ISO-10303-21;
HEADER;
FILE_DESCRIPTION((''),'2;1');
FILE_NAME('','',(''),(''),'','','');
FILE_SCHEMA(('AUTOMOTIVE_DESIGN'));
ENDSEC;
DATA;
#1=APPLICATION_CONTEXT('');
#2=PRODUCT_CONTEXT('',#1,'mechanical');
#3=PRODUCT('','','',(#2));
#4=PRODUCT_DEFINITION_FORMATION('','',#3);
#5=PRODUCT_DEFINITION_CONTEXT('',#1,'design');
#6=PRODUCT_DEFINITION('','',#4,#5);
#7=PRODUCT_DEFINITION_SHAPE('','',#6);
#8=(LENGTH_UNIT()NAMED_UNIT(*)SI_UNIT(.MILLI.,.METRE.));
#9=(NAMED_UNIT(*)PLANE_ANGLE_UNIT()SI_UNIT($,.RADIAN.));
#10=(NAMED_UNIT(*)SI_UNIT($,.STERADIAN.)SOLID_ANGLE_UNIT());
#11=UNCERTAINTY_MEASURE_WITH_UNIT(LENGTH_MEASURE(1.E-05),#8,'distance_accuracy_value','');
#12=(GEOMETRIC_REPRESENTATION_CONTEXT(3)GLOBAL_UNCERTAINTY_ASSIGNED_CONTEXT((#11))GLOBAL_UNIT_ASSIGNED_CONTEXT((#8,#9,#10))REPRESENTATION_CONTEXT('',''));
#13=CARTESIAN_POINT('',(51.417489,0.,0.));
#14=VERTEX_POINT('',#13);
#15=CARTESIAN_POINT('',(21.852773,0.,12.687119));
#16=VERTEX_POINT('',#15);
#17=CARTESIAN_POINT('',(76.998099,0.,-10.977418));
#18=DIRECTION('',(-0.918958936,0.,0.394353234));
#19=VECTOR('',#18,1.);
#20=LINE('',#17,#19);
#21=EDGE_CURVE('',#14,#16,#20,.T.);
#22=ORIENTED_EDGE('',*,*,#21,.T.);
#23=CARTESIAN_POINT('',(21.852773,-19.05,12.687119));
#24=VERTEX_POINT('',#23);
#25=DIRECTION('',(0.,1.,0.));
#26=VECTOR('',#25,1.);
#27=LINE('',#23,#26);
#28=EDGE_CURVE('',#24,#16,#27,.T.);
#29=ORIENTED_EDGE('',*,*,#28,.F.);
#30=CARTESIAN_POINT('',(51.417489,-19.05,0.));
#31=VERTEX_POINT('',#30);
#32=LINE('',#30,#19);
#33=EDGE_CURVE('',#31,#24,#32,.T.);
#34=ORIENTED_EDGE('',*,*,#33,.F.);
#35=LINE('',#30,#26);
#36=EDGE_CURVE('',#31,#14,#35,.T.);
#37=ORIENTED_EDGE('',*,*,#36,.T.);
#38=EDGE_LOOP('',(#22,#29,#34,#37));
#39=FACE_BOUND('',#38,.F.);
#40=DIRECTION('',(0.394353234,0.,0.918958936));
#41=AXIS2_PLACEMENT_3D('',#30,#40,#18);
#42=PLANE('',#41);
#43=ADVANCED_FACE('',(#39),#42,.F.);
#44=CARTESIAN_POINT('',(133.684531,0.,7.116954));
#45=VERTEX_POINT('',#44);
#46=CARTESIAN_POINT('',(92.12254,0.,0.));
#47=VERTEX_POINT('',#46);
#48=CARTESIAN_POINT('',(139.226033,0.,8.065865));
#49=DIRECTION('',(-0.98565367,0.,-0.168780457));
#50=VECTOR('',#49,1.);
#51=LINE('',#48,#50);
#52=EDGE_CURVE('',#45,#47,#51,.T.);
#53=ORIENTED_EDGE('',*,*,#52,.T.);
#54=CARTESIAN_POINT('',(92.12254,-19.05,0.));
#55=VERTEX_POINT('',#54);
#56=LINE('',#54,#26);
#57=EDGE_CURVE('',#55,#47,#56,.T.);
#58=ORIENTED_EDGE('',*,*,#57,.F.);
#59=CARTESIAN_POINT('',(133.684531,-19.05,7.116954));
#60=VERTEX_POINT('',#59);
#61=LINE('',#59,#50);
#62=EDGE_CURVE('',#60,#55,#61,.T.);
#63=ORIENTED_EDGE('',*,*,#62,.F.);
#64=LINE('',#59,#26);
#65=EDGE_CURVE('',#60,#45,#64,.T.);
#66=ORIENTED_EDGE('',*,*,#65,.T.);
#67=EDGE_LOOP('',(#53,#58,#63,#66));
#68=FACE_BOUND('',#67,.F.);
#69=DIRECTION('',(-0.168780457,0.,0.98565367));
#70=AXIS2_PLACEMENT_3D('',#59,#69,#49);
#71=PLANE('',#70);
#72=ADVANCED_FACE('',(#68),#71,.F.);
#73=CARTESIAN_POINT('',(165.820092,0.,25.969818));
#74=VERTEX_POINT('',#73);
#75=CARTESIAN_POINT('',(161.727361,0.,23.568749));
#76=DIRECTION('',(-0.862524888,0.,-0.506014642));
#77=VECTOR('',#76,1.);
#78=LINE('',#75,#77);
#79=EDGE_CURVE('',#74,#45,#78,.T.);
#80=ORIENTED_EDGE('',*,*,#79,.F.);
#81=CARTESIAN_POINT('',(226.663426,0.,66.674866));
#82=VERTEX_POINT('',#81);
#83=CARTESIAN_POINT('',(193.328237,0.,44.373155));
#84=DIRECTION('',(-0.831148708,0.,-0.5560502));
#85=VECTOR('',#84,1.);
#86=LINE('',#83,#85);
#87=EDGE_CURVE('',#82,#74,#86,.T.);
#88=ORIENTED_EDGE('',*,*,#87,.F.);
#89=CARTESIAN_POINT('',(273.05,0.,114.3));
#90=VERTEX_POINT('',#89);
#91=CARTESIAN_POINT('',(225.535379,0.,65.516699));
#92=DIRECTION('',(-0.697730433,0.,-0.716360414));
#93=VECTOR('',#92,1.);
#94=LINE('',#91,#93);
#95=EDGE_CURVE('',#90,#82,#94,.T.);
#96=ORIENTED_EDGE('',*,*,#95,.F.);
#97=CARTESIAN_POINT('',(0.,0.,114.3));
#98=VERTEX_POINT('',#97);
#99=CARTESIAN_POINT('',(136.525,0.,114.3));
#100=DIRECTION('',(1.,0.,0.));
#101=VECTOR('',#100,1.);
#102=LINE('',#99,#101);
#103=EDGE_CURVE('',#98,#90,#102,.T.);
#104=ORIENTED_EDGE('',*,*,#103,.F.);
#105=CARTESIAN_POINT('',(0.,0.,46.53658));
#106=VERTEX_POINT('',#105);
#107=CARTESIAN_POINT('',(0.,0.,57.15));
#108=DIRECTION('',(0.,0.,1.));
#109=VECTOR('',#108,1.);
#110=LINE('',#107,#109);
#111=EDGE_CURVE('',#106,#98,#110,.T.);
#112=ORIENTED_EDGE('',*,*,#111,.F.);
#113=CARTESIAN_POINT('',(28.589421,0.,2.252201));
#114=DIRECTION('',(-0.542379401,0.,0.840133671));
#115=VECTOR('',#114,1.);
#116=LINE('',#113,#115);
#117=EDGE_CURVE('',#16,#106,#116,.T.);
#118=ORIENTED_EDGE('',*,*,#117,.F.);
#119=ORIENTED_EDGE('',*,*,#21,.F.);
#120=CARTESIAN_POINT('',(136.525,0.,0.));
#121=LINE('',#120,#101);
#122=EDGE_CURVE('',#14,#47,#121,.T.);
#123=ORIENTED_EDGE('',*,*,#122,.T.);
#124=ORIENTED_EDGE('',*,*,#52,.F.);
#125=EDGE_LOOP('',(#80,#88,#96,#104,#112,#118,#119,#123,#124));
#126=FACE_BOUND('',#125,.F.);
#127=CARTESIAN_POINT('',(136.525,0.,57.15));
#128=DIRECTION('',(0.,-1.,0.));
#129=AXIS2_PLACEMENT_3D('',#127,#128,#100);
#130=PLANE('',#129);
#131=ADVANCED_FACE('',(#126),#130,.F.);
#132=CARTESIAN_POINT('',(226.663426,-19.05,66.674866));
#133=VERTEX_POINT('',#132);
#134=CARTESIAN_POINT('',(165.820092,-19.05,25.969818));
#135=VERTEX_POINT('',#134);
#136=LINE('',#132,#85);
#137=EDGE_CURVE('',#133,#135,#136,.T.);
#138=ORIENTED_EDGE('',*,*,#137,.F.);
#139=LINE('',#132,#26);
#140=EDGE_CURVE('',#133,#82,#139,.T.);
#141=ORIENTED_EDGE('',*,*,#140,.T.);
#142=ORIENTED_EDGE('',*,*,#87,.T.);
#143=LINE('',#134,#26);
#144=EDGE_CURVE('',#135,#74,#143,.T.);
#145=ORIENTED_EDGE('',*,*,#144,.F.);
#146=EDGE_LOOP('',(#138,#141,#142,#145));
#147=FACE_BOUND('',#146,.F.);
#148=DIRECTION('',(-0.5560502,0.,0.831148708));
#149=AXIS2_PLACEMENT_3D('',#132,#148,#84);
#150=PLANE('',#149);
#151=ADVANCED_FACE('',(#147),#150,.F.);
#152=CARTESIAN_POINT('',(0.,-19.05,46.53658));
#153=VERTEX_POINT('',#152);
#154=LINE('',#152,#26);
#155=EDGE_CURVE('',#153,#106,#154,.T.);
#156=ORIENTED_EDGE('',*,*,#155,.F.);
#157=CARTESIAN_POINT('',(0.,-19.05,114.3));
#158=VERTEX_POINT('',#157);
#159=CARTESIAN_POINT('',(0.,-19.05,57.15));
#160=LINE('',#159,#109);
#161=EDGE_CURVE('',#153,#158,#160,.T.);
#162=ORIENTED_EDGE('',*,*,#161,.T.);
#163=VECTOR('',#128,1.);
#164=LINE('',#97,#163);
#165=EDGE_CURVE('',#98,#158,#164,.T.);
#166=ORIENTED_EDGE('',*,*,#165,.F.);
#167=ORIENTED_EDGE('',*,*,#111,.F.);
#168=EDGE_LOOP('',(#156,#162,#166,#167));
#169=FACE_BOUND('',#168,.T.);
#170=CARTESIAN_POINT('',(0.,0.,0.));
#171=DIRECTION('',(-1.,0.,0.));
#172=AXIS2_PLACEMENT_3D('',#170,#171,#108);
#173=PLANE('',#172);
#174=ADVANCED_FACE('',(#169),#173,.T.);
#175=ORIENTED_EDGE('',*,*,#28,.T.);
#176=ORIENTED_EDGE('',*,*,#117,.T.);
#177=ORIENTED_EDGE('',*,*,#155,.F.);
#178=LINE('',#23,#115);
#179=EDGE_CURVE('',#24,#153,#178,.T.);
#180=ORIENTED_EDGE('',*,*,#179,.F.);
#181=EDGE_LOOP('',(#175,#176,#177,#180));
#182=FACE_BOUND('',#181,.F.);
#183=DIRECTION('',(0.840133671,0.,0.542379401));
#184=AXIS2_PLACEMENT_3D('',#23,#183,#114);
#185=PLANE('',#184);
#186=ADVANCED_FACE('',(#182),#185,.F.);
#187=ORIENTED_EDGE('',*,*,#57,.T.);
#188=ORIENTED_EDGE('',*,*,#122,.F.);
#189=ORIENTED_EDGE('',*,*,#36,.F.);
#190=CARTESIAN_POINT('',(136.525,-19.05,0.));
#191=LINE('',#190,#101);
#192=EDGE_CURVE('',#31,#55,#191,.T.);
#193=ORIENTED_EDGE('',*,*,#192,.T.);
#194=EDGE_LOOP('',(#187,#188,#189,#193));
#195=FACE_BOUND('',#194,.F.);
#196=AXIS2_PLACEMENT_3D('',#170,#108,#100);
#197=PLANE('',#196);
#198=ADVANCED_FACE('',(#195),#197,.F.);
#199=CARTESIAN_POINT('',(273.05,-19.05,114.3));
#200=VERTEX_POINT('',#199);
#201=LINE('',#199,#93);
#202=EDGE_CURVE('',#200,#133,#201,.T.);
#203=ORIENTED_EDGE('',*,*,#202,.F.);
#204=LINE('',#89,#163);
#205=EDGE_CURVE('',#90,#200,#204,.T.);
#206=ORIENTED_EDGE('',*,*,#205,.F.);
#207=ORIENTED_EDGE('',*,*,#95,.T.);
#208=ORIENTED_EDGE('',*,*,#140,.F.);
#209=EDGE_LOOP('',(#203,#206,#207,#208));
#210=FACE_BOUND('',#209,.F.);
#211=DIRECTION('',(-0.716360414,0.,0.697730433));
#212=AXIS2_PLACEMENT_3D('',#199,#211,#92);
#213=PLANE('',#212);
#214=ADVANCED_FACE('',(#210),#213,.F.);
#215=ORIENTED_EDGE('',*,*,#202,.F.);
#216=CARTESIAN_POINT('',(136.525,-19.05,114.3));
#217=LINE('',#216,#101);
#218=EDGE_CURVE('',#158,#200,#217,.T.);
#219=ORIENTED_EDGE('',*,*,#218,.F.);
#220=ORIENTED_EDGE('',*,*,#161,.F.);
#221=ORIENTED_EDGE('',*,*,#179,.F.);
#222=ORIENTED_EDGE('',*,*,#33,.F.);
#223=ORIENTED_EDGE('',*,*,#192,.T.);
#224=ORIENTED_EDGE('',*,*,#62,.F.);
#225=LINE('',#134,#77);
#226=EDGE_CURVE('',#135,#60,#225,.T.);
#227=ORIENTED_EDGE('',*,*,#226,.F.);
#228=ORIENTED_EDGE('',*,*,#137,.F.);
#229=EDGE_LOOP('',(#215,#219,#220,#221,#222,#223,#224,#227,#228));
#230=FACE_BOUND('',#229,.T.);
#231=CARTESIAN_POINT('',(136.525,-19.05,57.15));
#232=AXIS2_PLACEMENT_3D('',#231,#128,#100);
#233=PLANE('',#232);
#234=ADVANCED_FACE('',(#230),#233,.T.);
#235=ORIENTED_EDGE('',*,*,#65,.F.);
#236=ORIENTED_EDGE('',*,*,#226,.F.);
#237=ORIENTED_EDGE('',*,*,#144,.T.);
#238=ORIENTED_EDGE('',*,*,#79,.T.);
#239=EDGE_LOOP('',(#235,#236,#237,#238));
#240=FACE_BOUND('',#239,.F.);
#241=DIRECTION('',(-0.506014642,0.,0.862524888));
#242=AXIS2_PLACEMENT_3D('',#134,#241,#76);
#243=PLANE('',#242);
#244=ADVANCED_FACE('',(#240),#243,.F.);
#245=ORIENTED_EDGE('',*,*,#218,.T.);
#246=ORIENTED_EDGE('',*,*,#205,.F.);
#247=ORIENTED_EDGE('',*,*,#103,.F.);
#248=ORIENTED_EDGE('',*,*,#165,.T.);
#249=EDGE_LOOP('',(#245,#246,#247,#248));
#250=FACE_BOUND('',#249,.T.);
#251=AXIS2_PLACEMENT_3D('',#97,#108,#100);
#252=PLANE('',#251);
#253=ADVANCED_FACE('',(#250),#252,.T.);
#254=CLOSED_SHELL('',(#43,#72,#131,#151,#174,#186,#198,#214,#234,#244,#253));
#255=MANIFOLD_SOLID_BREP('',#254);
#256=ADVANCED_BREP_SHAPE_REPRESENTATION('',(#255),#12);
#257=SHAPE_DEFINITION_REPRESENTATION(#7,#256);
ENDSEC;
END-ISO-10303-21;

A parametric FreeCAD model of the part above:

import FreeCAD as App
import Part
import Sketcher
Q = App.Units.Quantity

doc = App.newDocument("Part")
params = doc.addObject("Spreadsheet::Sheet", "Params")
for row, (alias, value) in enumerate([
    ("sketch1_height", "4.5 in"),
    ("sketch1_width", "10.75 in"),
    ("pad1_length", "0.75 in"),
    ("sketch2_height", "4.5 in"),
    ("pocket1_length", "1 in"),
], start=1):
    params.set(f"A{row}", alias)
    params.set(f"B{row}", "=" + value)
    params.setAlias(f"B{row}", alias)

body = doc.addObject("PartDesign::Body", "Body")

# Sketch on XZ plane
sketch1 = body.newObject("Sketcher::SketchObject", "Sketch")
sketch1.AttachmentSupport = (doc.getObject("XZ_Plane"), [""])
sketch1.MapMode = "FlatFace"
sketch1.addGeometry([
    Part.LineSegment(App.Vector(0, 114.3, 0), App.Vector(0, 0, 0)),
    Part.LineSegment(App.Vector(0, 0, 0), App.Vector(273.05, 0, 0)),
    Part.LineSegment(App.Vector(273.05, 0, 0), App.Vector(273.05, 114.3, 0)),
    Part.LineSegment(App.Vector(273.05, 114.3, 0), App.Vector(0, 114.3, 0)),
], False)
sketch1.addConstraint([
    Sketcher.Constraint("Coincident", 0, 2, 1, 1),
    Sketcher.Constraint("Coincident", 1, 2, 2, 1),
    Sketcher.Constraint("Coincident", 2, 2, 3, 1),
    Sketcher.Constraint("Coincident", 3, 2, 0, 1),
    Sketcher.Constraint("Vertical", 0),
    Sketcher.Constraint("Horizontal", 1),
    Sketcher.Constraint("Vertical", 2),
    Sketcher.Constraint("Horizontal", 3),
    Sketcher.Constraint("Coincident", 0, 2, -1, 1),
    Sketcher.Constraint("DistanceY", 0, 2, 0, 1, Q("4.5 in")),
    Sketcher.Constraint("DistanceX", 1, 1, 1, 2, Q("10.75 in")),
])
sketch1.setExpression("Constraints[9]", "Params.sketch1_height")
sketch1.setExpression("Constraints[10]", "Params.sketch1_width")
pad1 = body.newObject("PartDesign::Pad", "Pad")
pad1.Profile = sketch1
pad1.setExpression("Length", "Params.pad1_length")

# Sketch on XZ plane
sketch2 = body.newObject("Sketcher::SketchObject", "Sketch001")
sketch2.AttachmentSupport = (doc.getObject("XZ_Plane"), [""])
sketch2.MapMode = "FlatFace"
sketch2.AttachmentOffset = App.Placement(App.Vector(0, 0, 0.75 * 25.4), App.Rotation())
sketch2.addGeometry([
    Part.LineSegment(App.Vector(21.852773, 12.687119, 0), App.Vector(0, 46.53658, 0)),  # 0
    Part.LineSegment(App.Vector(0, 46.53658, 0), App.Vector(0, 0, 0)),  # 1
    Part.LineSegment(App.Vector(0, 0, 0), App.Vector(51.417489, 0, 0)),  # 2
    Part.LineSegment(App.Vector(51.417489, 0, 0), App.Vector(21.852773, 12.687119, 0)),  # 3
    Part.LineSegment(App.Vector(273.05, 0, 0), App.Vector(273.05, 114.3, 0)),  # 4
    Part.LineSegment(App.Vector(273.05, 114.3, 0), App.Vector(226.663426, 66.674866, 0)),  # 5
    Part.LineSegment(App.Vector(226.663426, 66.674866, 0), App.Vector(165.820092, 25.969818, 0)),  # 6
    Part.LineSegment(App.Vector(165.820092, 25.969818, 0), App.Vector(133.684531, 7.116954, 0)),  # 7
    Part.LineSegment(App.Vector(133.684531, 7.116954, 0), App.Vector(92.12254, 0, 0)),  # 8
    Part.LineSegment(App.Vector(92.12254, 0, 0), App.Vector(273.05, 0, 0)),  # 9
], False)
sketch2.addConstraint([
    Sketcher.Constraint("Coincident", 0, 2, 1, 1),
    Sketcher.Constraint("Coincident", 1, 2, 2, 1),
    Sketcher.Constraint("Coincident", 2, 2, 3, 1),
    Sketcher.Constraint("Coincident", 3, 2, 0, 1),
    Sketcher.Constraint("Coincident", 4, 2, 5, 1),
    Sketcher.Constraint("Coincident", 5, 2, 6, 1),
    Sketcher.Constraint("Coincident", 6, 2, 7, 1),
    Sketcher.Constraint("Coincident", 7, 2, 8, 1),
    Sketcher.Constraint("Coincident", 8, 2, 9, 1),
    Sketcher.Constraint("Coincident", 9, 2, 4, 1),
    Sketcher.Constraint("Vertical", 1),
    Sketcher.Constraint("Horizontal", 2),
    Sketcher.Constraint("Vertical", 4),
    Sketcher.Constraint("Horizontal", 9),
    Sketcher.Constraint("Coincident", 1, 2, -1, 1),
    Sketcher.Constraint("PointOnObject", 8, 2, -1),
    Sketcher.Constraint("DistanceY", 4, 1, 4, 2, Q("4.5 in")),
    Sketcher.Constraint("DistanceX", -1, 1, 4, 2, Q("10.75 in")),
    Sketcher.Constraint("DistanceX", 2, 1, 2, 2, Q("51.417489 mm")),
    Sketcher.Constraint("DistanceX", 9, 1, 9, 2, Q("180.92746 mm")),
    Sketcher.Constraint("DistanceY", 1, 2, 1, 1, Q("46.53658 mm")),
    Sketcher.Constraint("DistanceY", 3, 2, 6, 2, Q("13.282699 mm")),
    Sketcher.Constraint("Distance", 6, Q("73.203909 mm")),
    Sketcher.Constraint("Distance", 8, Q("42.166932 mm")),
    Sketcher.Constraint("DistanceY", -1, 1, 3, 2, Q("12.687119 mm")),
    Sketcher.Constraint("DistanceX", -1, 1, 6, 2, Q("165.820092 mm")),
    Sketcher.Constraint("DistanceX", -1, 1, 7, 2, Q("133.684531 mm")),
    Sketcher.Constraint("DistanceX", 3, 2, 6, 2, Q("143.967319 mm")),
    Sketcher.Constraint("DistanceY", 7, 2, 5, 2, Q("59.557912 mm")),
])
sketch2.setExpression("Constraints[16]", "Params.sketch2_height")
pocket1 = body.newObject("PartDesign::Pocket", "Pocket")
pocket1.Profile = sketch2
pocket1.setExpression("Length", "Params.pocket1_length")

doc.recompute()
